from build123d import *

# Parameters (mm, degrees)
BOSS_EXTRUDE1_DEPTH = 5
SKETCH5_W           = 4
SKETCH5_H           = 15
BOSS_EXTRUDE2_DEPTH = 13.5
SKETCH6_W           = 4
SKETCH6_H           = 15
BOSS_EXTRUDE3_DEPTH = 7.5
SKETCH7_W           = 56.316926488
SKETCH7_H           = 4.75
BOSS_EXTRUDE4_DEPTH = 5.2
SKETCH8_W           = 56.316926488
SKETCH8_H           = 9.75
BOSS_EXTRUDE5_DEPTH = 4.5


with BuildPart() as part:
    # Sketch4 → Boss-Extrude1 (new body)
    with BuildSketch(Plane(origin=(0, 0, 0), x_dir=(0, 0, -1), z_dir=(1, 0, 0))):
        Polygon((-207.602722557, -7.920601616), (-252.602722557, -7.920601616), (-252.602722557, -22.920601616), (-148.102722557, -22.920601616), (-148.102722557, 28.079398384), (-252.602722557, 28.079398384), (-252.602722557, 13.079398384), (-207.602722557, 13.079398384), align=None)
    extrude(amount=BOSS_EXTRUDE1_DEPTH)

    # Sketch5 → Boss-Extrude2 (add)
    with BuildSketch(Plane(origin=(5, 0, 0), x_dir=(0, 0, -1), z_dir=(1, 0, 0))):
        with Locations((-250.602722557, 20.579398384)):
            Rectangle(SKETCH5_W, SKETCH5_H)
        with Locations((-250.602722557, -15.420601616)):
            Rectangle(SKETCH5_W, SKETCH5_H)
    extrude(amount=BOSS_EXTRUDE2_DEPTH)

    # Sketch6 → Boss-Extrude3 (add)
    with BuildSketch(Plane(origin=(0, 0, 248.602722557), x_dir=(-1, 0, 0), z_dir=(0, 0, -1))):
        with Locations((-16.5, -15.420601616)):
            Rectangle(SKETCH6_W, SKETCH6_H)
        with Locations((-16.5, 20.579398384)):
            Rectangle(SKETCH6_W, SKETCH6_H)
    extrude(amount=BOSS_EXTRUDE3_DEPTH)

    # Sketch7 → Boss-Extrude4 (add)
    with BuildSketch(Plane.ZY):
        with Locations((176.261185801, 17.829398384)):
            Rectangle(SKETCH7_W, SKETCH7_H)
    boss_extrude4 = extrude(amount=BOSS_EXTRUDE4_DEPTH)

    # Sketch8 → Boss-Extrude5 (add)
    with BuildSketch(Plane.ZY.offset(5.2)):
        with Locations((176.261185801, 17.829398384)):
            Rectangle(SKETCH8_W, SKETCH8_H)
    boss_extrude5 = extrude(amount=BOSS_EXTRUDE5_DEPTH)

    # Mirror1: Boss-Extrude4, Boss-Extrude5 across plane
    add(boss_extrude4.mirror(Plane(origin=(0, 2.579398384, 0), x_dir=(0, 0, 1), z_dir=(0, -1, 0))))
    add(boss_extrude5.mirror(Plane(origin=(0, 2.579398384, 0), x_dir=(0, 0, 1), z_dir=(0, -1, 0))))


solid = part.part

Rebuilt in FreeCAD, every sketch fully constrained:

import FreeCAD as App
import Part
import Sketcher
Q = App.Units.Quantity

doc = App.newDocument("Part")
params = doc.addObject("Spreadsheet::Sheet", "Params")
for row, (alias, value) in enumerate([
    ("sketch1_width", "15 mm"),
    ("sketch1_width2", "51 mm"),
    ("sketch1_height", "45 mm"),
    ("sketch1_height2", "104.5 mm"),
    ("pad1_length", "5 mm"),
    ("sketch2_width", "15 mm"),
    ("sketch2_height", "4 mm"),
    ("pad2_length", "13.5 mm"),
    ("sketch3_width", "4 mm"),
    ("sketch3_height", "15 mm"),
    ("pad3_length", "7.5 mm"),
    ("sketch4_width", "4.75 mm"),
    ("pad4_length", "5.2 mm"),
    ("sketch5_width", "9.75 mm"),
    ("pad5_length", "4.5 mm"),
], start=1):
    params.set(f"A{row}", alias)
    params.set(f"B{row}", "=" + value)
    params.setAlias(f"B{row}", alias)

body = doc.addObject("PartDesign::Body", "Body")

# Sketch on YZ plane
sketch1 = body.newObject("Sketcher::SketchObject", "Sketch")
sketch1.AttachmentSupport = (doc.getObject("YZ_Plane"), [""])
sketch1.MapMode = "FlatFace"
sketch1.addGeometry([
    Part.LineSegment(App.Vector(-8, 208, 0), App.Vector(-8, 253, 0)),  # 0
    Part.LineSegment(App.Vector(-8, 253, 0), App.Vector(-23, 253, 0)),  # 1
    Part.LineSegment(App.Vector(-23, 253, 0), App.Vector(-23, 148, 0)),  # 2
    Part.LineSegment(App.Vector(-23, 148, 0), App.Vector(28, 148, 0)),  # 3
    Part.LineSegment(App.Vector(28, 148, 0), App.Vector(28, 253, 0)),  # 4
    Part.LineSegment(App.Vector(28, 253, 0), App.Vector(13, 253, 0)),  # 5
    Part.LineSegment(App.Vector(13, 253, 0), App.Vector(13, 208, 0)),  # 6
    Part.LineSegment(App.Vector(13, 208, 0), App.Vector(-8, 208, 0)),  # 7
], False)
sketch1.addConstraint([
    Sketcher.Constraint("Coincident", 0, 2, 1, 1),
    Sketcher.Constraint("Coincident", 1, 2, 2, 1),
    Sketcher.Constraint("Coincident", 2, 2, 3, 1),
    Sketcher.Constraint("Coincident", 3, 2, 4, 1),
    Sketcher.Constraint("Coincident", 4, 2, 5, 1),
    Sketcher.Constraint("Coincident", 5, 2, 6, 1),
    Sketcher.Constraint("Coincident", 6, 2, 7, 1),
    Sketcher.Constraint("Coincident", 7, 2, 0, 1),
    Sketcher.Constraint("Vertical", 0),
    Sketcher.Constraint("Horizontal", 1),
    Sketcher.Constraint("Vertical", 2),
    Sketcher.Constraint("Horizontal", 3),
    Sketcher.Constraint("Vertical", 4),
    Sketcher.Constraint("Horizontal", 5),
    Sketcher.Constraint("Vertical", 6),
    Sketcher.Constraint("Horizontal", 7),
    Sketcher.Constraint("Horizontal", 1, 2, 4, 2),
    Sketcher.Constraint("Equal", 1, 5),
    Sketcher.Constraint("DistanceX", 1, 2, 1, 1, Q("15 mm")),
    Sketcher.Constraint("DistanceX", 3, 1, 3, 2, Q("51 mm")),
    Sketcher.Constraint("DistanceY", 0, 1, 0, 2, Q("45 mm")),
    Sketcher.Constraint("DistanceY", 2, 2, 2, 1, Q("104.5 mm")),
    Sketcher.Constraint("DistanceX", 0, 2, -1, 1, Q("7.920602 mm")),
    Sketcher.Constraint("DistanceY", -1, 1, 0, 2, Q("252.602723 mm")),
])
sketch1.setExpression("Constraints[18]", "Params.sketch1_width")
sketch1.setExpression("Constraints[19]", "Params.sketch1_width2")
sketch1.setExpression("Constraints[20]", "Params.sketch1_height")
sketch1.setExpression("Constraints[21]", "Params.sketch1_height2")
pad1 = body.newObject("PartDesign::Pad", "Pad")
pad1.Profile = sketch1
pad1.setExpression("Length", "Params.pad1_length")

# Sketch on YZ plane
sketch2 = body.newObject("Sketcher::SketchObject", "Sketch001")
sketch2.AttachmentSupport = (doc.getObject("YZ_Plane"), [""])
sketch2.MapMode = "FlatFace"
sketch2.AttachmentOffset = App.Placement(App.Vector(0, 0, 5), App.Rotation())
sketch2.addGeometry([
    Part.LineSegment(App.Vector(28.1, 252.6, 0), App.Vector(13.1, 252.6, 0)),  # 0
    Part.LineSegment(App.Vector(13.1, 252.6, 0), App.Vector(13.1, 248.6, 0)),  # 1
    Part.LineSegment(App.Vector(13.1, 248.6, 0), App.Vector(28.1, 248.6, 0)),  # 2
    Part.LineSegment(App.Vector(28.1, 248.6, 0), App.Vector(28.1, 252.6, 0)),  # 3
    Part.LineSegment(App.Vector(-7.9, 252.6, 0), App.Vector(-22.9, 252.6, 0)),  # 4
    Part.LineSegment(App.Vector(-22.9, 252.6, 0), App.Vector(-22.9, 248.6, 0)),  # 5
    Part.LineSegment(App.Vector(-22.9, 248.6, 0), App.Vector(-7.9, 248.6, 0)),  # 6
    Part.LineSegment(App.Vector(-7.9, 248.6, 0), App.Vector(-7.9, 252.6, 0)),  # 7
], False)
sketch2.addConstraint([
    Sketcher.Constraint("Coincident", 0, 2, 1, 1),
    Sketcher.Constraint("Coincident", 1, 2, 2, 1),
    Sketcher.Constraint("Coincident", 2, 2, 3, 1),
    Sketcher.Constraint("Coincident", 3, 2, 0, 1),
    Sketcher.Constraint("Coincident", 4, 2, 5, 1),
    Sketcher.Constraint("Coincident", 5, 2, 6, 1),
    Sketcher.Constraint("Coincident", 6, 2, 7, 1),
    Sketcher.Constraint("Coincident", 7, 2, 4, 1),
    Sketcher.Constraint("Horizontal", 0),
    Sketcher.Constraint("Vertical", 1),
    Sketcher.Constraint("Horizontal", 2),
    Sketcher.Constraint("Vertical", 3),
    Sketcher.Constraint("Horizontal", 4),
    Sketcher.Constraint("Vertical", 5),
    Sketcher.Constraint("Horizontal", 6),
    Sketcher.Constraint("Vertical", 7),
    Sketcher.Constraint("Horizontal", 3, 2, 4, 2),
    Sketcher.Constraint("Horizontal", 2, 2, 5, 2),
    Sketcher.Constraint("Equal", 2, 4),
    Sketcher.Constraint("DistanceX", 0, 2, 0, 1, Q("15 mm")),
    Sketcher.Constraint("DistanceY", 1, 2, 1, 1, Q("4 mm")),
    Sketcher.Constraint("DistanceX", 4, 2, 0, 2, Q("36 mm")),
    Sketcher.Constraint("DistanceX", -1, 1, 0, 2, Q("13.079398 mm")),
    Sketcher.Constraint("DistanceY", -1, 1, 0, 2, Q("252.602723 mm")),
])
sketch2.setExpression("Constraints[19]", "Params.sketch2_width")
sketch2.setExpression("Constraints[20]", "Params.sketch2_height")
pad2 = body.newObject("PartDesign::Pad", "Pad001")
pad2.Profile = sketch2
pad2.setExpression("Length", "Params.pad2_length")

# Sketch on XY plane
sketch3 = body.newObject("Sketcher::SketchObject", "Sketch002")
sketch3.AttachmentSupport = (doc.getObject("XY_Plane"), [""])
sketch3.MapMode = "FlatFace"
sketch3.AttachmentOffset = App.Placement(App.Vector(0, 0, 248.602723), App.Rotation())
sketch3.addGeometry([
    Part.LineSegment(App.Vector(18.5, -7.9, 0), App.Vector(18.5, -22.9, 0)),  # 0
    Part.LineSegment(App.Vector(18.5, -22.9, 0), App.Vector(14.5, -22.9, 0)),  # 1
    Part.LineSegment(App.Vector(14.5, -22.9, 0), App.Vector(14.5, -7.9, 0)),  # 2
    Part.LineSegment(App.Vector(14.5, -7.9, 0), App.Vector(18.5, -7.9, 0)),  # 3
    Part.LineSegment(App.Vector(18.5, 28.1, 0), App.Vector(18.5, 13.1, 0)),  # 4
    Part.LineSegment(App.Vector(18.5, 13.1, 0), App.Vector(14.5, 13.1, 0)),  # 5
    Part.LineSegment(App.Vector(14.5, 13.1, 0), App.Vector(14.5, 28.1, 0)),  # 6
    Part.LineSegment(App.Vector(14.5, 28.1, 0), App.Vector(18.5, 28.1, 0)),  # 7
], False)
sketch3.addConstraint([
    Sketcher.Constraint("Coincident", 0, 2, 1, 1),
    Sketcher.Constraint("Coincident", 1, 2, 2, 1),
    Sketcher.Constraint("Coincident", 2, 2, 3, 1),
    Sketcher.Constraint("Coincident", 3, 2, 0, 1),
    Sketcher.Constraint("Coincident", 4, 2, 5, 1),
    Sketcher.Constraint("Coincident", 5, 2, 6, 1),
    Sketcher.Constraint("Coincident", 6, 2, 7, 1),
    Sketcher.Constraint("Coincident", 7, 2, 4, 1),
    Sketcher.Constraint("Vertical", 0),
    Sketcher.Constraint("Horizontal", 1),
    Sketcher.Constraint("Vertical", 2),
    Sketcher.Constraint("Horizontal", 3),
    Sketcher.Constraint("Vertical", 4),
    Sketcher.Constraint("Horizontal", 5),
    Sketcher.Constraint("Vertical", 6),
    Sketcher.Constraint("Horizontal", 7),
    Sketcher.Constraint("Vertical", 3, 2, 4, 2),
    Sketcher.Constraint("Vertical", 2, 2, 5, 2),
    Sketcher.Constraint("Equal", 2, 4),
    Sketcher.Constraint("DistanceX", 1, 2, 1, 1, Q("4 mm")),
    Sketcher.Constraint("DistanceY", 0, 2, 0, 1, Q("15 mm")),
    Sketcher.Constraint("DistanceY", 3, 2, 4, 2, Q("21 mm")),
    Sketcher.Constraint("DistanceX", -1, 1, 0, 2, Q("18.5 mm")),
    Sketcher.Constraint("DistanceY", 0, 2, -1, 1, Q("22.920602 mm")),
])
sketch3.setExpression("Constraints[19]", "Params.sketch3_width")
sketch3.setExpression("Constraints[20]", "Params.sketch3_height")
pad3 = body.newObject("PartDesign::Pad", "Pad002")
pad3.Profile = sketch3
pad3.setExpression("Length", "Params.pad3_length")
pad3.Reversed = True

# Sketch on YZ plane
sketch4 = body.newObject("Sketcher::SketchObject", "Sketch003")
sketch4.AttachmentSupport = (doc.getObject("YZ_Plane"), [""])
sketch4.MapMode = "FlatFace"
sketch4.addGeometry([
    Part.LineSegment(App.Vector(20.2, 148.1, 0), App.Vector(15.5, 148.1, 0)),
    Part.LineSegment(App.Vector(15.5, 148.1, 0), App.Vector(15.5, 204.4, 0)),
    Part.LineSegment(App.Vector(15.5, 204.4, 0), App.Vector(20.2, 204.4, 0)),
    Part.LineSegment(App.Vector(20.2, 204.4, 0), App.Vector(20.2, 148.1, 0)),
], False)
sketch4.addConstraint([
    Sketcher.Constraint("Coincident", 0, 2, 1, 1),
    Sketcher.Constraint("Coincident", 1, 2, 2, 1),
    Sketcher.Constraint("Coincident", 2, 2, 3, 1),
    Sketcher.Constraint("Coincident", 3, 2, 0, 1),
    Sketcher.Constraint("Horizontal", 0),
    Sketcher.Constraint("Vertical", 1),
    Sketcher.Constraint("Horizontal", 2),
    Sketcher.Constraint("Vertical", 3),
    Sketcher.Constraint("DistanceX", 0, 2, 0, 1, Q("4.75 mm")),
    Sketcher.Constraint("DistanceX", -1, 1, 0, 2, Q("15.454398 mm")),
    Sketcher.Constraint("DistanceY", 1, 1, 1, 2, Q("56.316926 mm")),
    Sketcher.Constraint("DistanceY", -1, 1, 1, 2, Q("204.419649 mm")),
])
sketch4.setExpression("Constraints[8]", "Params.sketch4_width")
pad4 = body.newObject("PartDesign::Pad", "Pad003")
pad4.Profile = sketch4
pad4.setExpression("Length", "Params.pad4_length")
pad4.Reversed = True

# Sketch on YZ plane
sketch5 = body.newObject("Sketcher::SketchObject", "Sketch004")
sketch5.AttachmentSupport = (doc.getObject("YZ_Plane"), [""])
sketch5.MapMode = "FlatFace"
sketch5.AttachmentOffset = App.Placement(App.Vector(0, 0, -5.2), App.Rotation())
sketch5.addGeometry([
    Part.LineSegment(App.Vector(23, 148, 0), App.Vector(13, 148, 0)),
    Part.LineSegment(App.Vector(13, 148, 0), App.Vector(13, 204, 0)),
    Part.LineSegment(App.Vector(13, 204, 0), App.Vector(23, 204, 0)),
    Part.LineSegment(App.Vector(23, 204, 0), App.Vector(23, 148, 0)),
], False)
sketch5.addConstraint([
    Sketcher.Constraint("Coincident", 0, 2, 1, 1),
    Sketcher.Constraint("Coincident", 1, 2, 2, 1),
    Sketcher.Constraint("Coincident", 2, 2, 3, 1),
    Sketcher.Constraint("Coincident", 3, 2, 0, 1),
    Sketcher.Constraint("Horizontal", 0),
    Sketcher.Constraint("Vertical", 1),
    Sketcher.Constraint("Horizontal", 2),
    Sketcher.Constraint("Vertical", 3),
    Sketcher.Constraint("DistanceX", 0, 2, 0, 1, Q("9.75 mm")),
    Sketcher.Constraint("DistanceX", -1, 1, 0, 2, Q("12.954398 mm")),
    Sketcher.Constraint("DistanceY", 1, 1, 1, 2, Q("56.316926 mm")),
    Sketcher.Constraint("DistanceY", -1, 1, 1, 2, Q("204.419649 mm")),
])
sketch5.setExpression("Constraints[8]", "Params.sketch5_width")
pad5 = body.newObject("PartDesign::Pad", "Pad004")
pad5.Profile = sketch5
pad5.setExpression("Length", "Params.pad5_length")
pad5.Reversed = True
doc.recompute()

datumplane = body.newObject("PartDesign::Plane", "DatumPlane")
datumplane.AttachmentSupport = (doc.getObject("XZ_Plane"), [""])
datumplane.MapMode = "FlatFace"
datumplane.AttachmentOffset = App.Placement(App.Vector(0, 0, -2.579398), App.Rotation())
mirrored = body.newObject("PartDesign::Mirrored", "Mirrored")
mirrored.Originals = [pad4, pad5]
mirrored.MirrorPlane = (datumplane, [""])
body.Tip = mirrored

doc.recompute()
